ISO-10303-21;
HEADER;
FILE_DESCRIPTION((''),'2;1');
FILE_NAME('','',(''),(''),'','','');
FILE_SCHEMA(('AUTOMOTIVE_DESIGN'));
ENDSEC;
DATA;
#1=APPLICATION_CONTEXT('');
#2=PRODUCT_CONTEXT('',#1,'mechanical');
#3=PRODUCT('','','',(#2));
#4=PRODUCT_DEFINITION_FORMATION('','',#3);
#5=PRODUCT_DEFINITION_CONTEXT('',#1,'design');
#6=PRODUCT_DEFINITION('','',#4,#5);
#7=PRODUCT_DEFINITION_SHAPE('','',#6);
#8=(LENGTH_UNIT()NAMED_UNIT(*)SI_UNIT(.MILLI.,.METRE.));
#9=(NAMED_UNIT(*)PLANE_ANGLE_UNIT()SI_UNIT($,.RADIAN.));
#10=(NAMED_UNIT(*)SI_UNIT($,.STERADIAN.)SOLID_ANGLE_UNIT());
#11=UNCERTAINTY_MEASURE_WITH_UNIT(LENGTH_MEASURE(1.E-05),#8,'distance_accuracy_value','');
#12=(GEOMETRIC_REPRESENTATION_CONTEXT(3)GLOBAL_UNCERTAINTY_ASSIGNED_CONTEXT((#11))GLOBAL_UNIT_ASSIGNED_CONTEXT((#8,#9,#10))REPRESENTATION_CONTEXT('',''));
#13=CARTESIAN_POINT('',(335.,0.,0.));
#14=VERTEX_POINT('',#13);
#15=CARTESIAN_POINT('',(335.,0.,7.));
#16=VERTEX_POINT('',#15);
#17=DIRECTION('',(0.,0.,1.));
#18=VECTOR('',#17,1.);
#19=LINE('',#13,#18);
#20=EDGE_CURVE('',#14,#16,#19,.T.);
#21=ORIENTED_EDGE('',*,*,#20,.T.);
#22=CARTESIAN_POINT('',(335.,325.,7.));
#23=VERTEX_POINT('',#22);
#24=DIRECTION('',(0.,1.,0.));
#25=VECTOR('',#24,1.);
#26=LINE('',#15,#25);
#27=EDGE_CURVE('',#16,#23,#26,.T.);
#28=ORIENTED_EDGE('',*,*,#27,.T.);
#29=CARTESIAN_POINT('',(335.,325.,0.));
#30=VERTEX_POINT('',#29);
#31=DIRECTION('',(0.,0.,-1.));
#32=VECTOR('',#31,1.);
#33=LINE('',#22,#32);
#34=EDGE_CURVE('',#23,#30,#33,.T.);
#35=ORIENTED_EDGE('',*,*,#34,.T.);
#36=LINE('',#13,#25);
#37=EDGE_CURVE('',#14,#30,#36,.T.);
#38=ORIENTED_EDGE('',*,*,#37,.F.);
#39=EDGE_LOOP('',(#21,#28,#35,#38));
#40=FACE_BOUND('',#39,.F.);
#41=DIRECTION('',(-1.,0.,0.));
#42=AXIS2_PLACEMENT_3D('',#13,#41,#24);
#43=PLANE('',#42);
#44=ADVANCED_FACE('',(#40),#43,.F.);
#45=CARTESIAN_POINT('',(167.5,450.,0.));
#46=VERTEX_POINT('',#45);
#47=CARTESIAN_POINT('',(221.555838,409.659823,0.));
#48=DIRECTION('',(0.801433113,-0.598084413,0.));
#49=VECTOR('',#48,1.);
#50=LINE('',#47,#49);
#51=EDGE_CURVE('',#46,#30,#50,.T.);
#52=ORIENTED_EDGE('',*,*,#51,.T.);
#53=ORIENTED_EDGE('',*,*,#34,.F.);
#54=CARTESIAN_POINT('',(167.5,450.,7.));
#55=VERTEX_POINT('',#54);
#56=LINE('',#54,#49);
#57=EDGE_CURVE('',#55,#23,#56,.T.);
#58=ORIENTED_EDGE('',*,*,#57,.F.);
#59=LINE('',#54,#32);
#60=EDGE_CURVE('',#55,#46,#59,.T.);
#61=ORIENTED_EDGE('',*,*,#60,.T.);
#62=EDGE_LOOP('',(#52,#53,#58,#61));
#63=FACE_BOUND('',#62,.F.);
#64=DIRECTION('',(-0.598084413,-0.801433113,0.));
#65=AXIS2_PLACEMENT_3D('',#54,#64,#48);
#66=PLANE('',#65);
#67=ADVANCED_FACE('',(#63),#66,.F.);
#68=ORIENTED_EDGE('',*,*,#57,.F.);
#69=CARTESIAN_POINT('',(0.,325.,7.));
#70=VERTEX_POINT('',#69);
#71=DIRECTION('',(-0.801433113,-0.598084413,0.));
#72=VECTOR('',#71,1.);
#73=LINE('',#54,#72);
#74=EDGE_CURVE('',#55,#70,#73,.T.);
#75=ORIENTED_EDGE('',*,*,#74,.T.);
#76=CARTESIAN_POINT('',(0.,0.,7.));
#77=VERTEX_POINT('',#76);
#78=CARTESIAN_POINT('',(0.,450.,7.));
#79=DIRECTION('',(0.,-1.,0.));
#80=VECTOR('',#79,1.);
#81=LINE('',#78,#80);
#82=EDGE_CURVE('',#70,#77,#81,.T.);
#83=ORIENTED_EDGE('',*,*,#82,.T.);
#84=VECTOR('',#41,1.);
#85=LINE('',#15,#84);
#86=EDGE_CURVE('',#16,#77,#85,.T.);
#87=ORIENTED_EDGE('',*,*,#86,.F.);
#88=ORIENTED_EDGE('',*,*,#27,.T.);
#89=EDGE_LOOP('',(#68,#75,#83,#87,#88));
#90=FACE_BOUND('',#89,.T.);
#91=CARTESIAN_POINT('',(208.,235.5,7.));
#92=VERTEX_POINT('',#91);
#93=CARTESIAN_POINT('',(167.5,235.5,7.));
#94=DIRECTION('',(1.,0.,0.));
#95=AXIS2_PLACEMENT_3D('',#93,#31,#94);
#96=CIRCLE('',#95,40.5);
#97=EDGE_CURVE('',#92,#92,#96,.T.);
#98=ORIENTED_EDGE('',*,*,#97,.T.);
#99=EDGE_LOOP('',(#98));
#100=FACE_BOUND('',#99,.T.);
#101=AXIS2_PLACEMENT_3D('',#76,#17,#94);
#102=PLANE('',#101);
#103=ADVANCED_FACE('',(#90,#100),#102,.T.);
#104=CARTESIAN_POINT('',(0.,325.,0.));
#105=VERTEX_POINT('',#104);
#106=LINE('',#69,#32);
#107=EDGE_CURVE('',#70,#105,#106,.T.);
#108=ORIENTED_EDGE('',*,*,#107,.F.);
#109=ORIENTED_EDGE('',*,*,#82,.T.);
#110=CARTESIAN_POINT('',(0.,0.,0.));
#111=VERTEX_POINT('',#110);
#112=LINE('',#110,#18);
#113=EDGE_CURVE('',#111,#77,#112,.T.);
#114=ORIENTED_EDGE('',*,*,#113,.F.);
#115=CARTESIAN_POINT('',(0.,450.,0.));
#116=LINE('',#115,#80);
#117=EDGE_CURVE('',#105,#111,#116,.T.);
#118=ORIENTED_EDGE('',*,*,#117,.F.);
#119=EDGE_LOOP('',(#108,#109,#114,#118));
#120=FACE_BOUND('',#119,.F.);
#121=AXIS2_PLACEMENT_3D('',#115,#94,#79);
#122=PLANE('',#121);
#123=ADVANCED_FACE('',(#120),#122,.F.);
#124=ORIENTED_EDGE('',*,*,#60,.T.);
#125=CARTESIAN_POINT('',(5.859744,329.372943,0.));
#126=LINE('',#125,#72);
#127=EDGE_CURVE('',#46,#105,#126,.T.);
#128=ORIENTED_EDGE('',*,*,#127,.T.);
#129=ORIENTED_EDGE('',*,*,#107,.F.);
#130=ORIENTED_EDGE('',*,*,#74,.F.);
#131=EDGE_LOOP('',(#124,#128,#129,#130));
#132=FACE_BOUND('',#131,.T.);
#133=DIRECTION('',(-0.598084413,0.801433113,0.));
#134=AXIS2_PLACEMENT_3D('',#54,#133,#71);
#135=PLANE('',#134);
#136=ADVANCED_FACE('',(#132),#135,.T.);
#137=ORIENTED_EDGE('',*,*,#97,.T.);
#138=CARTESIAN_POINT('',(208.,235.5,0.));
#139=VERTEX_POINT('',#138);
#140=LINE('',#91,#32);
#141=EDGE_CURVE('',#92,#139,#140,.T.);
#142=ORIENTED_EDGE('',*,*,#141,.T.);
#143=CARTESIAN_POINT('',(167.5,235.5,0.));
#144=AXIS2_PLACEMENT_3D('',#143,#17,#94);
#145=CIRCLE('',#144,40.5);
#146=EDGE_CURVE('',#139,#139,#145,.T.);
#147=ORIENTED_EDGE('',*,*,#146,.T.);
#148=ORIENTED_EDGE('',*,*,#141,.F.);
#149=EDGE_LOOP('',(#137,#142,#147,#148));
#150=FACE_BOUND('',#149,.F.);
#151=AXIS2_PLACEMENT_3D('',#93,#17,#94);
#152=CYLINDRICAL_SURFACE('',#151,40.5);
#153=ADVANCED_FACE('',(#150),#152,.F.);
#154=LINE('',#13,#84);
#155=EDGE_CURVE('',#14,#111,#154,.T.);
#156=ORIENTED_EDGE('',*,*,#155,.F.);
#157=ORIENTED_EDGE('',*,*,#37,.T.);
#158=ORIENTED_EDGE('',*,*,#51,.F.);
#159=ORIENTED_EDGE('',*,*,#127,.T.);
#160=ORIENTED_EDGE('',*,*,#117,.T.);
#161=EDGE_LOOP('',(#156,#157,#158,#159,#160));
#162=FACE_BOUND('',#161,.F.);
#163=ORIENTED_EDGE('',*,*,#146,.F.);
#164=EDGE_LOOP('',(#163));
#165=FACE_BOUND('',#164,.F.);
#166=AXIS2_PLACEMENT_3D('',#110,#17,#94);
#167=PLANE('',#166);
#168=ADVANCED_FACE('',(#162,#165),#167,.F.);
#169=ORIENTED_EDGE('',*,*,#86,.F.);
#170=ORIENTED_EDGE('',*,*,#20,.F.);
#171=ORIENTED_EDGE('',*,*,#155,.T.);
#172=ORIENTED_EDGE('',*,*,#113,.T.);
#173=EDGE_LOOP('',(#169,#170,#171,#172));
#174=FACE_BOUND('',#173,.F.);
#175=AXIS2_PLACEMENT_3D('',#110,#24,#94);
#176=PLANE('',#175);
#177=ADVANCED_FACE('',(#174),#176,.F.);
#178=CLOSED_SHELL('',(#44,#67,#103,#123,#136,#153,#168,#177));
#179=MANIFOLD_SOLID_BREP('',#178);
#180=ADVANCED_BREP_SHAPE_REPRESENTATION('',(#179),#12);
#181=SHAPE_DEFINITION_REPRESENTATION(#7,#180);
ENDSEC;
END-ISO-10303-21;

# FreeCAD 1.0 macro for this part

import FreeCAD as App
import Part
import Sketcher

V = App.Vector
Q = App.Units.Quantity


def add_polygon(sketch, points):
    """Adds a closed chain of lines whose ends are joined by coincident constraints."""
    first, n = sketch.GeometryCount, len(points)
    for a, b in zip(points, points[1:] + points[:1]):
        sketch.addGeometry(Part.LineSegment(App.Vector(*a, 0), App.Vector(*b, 0)), False)
    for i in range(n):
        sketch.addConstraint(Sketcher.Constraint("Coincident", first + i, 2, first + (i + 1) % n, 1))

doc = App.newDocument("Part")
body = doc.addObject("PartDesign::Body", "Body")

# Sketch on XY plane
sketch1 = doc.addObject("Sketcher::SketchObject", "Sketch")
body.addObject(sketch1)
sketch1.AttachmentSupport = (doc.XY_Plane, [""])
sketch1.MapMode = "FlatFace"
add_polygon(sketch1, [(0, 450), (0, 0), (335, 0), (335, 450)])  # lines 0-3
sketch1.addConstraint([
    Sketcher.Constraint("Vertical", 0),
    Sketcher.Constraint("Horizontal", 1),
    Sketcher.Constraint("Vertical", 2),
    Sketcher.Constraint("Horizontal", 3),
    Sketcher.Constraint("Coincident", 0, 2, -1, 1),
    Sketcher.Constraint("DistanceX", 1, 1, 1, 2, Q("335 mm")),
    Sketcher.Constraint("DistanceY", 0, 2, 0, 1, Q("450 mm")),
])
pad1 = doc.addObject("PartDesign::Pad", "Pad")
body.addObject(pad1)
pad1.Profile = sketch1
pad1.Length = 7

# Sketch on XY plane
sketch2 = doc.addObject("Sketcher::SketchObject", "Sketch001")
body.addObject(sketch2)
sketch2.AttachmentSupport = (doc.XY_Plane, [""])
sketch2.MapMode = "FlatFace"
sketch2.AttachmentOffset = App.Placement(V(0, 0, 7), App.Rotation())
add_polygon(sketch2, [(0, 450), (0, 325), (168, 450)])  # lines 0-2
sketch2.addConstraint([
    Sketcher.Constraint("Vertical", 0),
    Sketcher.Constraint("Horizontal", 2),
    Sketcher.Constraint("PointOnObject", 0, 2, -2),
    Sketcher.Constraint("DistanceX", 2, 2, 2, 1, Q("167.5 mm")),
    Sketcher.Constraint("DistanceY", -1, 1, 0, 2, Q("325 mm")),
    Sketcher.Constraint("DistanceY", 0, 2, 0, 1, Q("125 mm")),
])
pocket1 = doc.addObject("PartDesign::Pocket", "Pocket")
body.addObject(pocket1)
pocket1.Profile = sketch2
pocket1.Length = 166.0375

# Sketch on XY plane
sketch3 = doc.addObject("Sketcher::SketchObject", "Sketch002")
body.addObject(sketch3)
sketch3.AttachmentSupport = (doc.XY_Plane, [""])
sketch3.MapMode = "FlatFace"
sketch3.AttachmentOffset = App.Placement(V(0, 0, 7), App.Rotation())
add_polygon(sketch3, [(335, 450), (168, 450), (335, 325)])  # lines 0-2
sketch3.addConstraint([
    Sketcher.Constraint("Horizontal", 0),
    Sketcher.Constraint("Vertical", 2),
    Sketcher.Constraint("DistanceY", -1, 1, 1, 2, Q("325 mm")),
    Sketcher.Constraint("DistanceY", 2, 1, 2, 2, Q("125 mm")),
    Sketcher.Constraint("DistanceX", 0, 2, 0, 1, Q("167.5 mm")),
    Sketcher.Constraint("DistanceX", -1, 1, 1, 2, Q("335 mm")),
])
pocket2 = doc.addObject("PartDesign::Pocket", "Pocket001")
body.addObject(pocket2)
pocket2.Profile = sketch3
pocket2.Length = 305.45

# Sketch on XY plane
sketch4 = doc.addObject("Sketcher::SketchObject", "Sketch003")
body.addObject(sketch4)
sketch4.AttachmentSupport = (doc.XY_Plane, [""])
sketch4.MapMode = "FlatFace"
sketch4.AttachmentOffset = App.Placement(V(0, 0, 7), App.Rotation())
sketch4.addGeometry(Part.Circle(V(168, 236, 0), V(0, 0, 1), 40), False)
sketch4.addConstraint([
    Sketcher.Constraint("Diameter", 0, Q("81 mm")),
    Sketcher.Constraint("DistanceX", -1, 1, 0, 3, Q("167.5 mm")),
    Sketcher.Constraint("DistanceY", -1, 1, 0, 3, Q("235.5 mm")),
])
pocket3 = doc.addObject("PartDesign::Pocket", "Pocket002")
body.addObject(pocket3)
pocket3.Profile = sketch4
pocket3.Length = 10

doc.recompute()
